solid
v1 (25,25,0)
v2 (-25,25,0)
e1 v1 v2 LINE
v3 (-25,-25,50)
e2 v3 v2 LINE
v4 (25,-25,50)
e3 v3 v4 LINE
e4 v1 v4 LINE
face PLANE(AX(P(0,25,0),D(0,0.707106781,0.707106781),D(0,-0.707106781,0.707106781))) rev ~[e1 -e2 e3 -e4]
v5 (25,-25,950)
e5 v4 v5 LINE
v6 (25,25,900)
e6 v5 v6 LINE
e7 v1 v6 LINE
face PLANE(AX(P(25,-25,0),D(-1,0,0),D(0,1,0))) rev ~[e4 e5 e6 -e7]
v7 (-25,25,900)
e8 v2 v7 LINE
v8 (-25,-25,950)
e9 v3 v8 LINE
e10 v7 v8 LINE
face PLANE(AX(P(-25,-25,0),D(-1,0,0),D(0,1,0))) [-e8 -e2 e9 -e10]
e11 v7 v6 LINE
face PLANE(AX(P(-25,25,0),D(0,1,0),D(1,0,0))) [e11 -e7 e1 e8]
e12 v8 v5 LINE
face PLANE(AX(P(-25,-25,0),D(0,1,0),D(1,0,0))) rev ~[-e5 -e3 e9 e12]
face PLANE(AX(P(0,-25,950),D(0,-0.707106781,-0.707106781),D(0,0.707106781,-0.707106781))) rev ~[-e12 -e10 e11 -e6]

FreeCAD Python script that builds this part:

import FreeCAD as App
import Part
import Sketcher
from FreeCAD import Vector

doc = App.newDocument("Part")
body = doc.addObject("PartDesign::Body", "Body")

sketch1 = doc.addObject("Sketcher::SketchObject", "Sketch")
body.addObject(sketch1)
sketch1.AttachmentSupport = (doc.XY_Plane, [""])
sketch1.MapMode = "FlatFace"
sketch1.addGeometry([
    Part.LineSegment(Vector(-25, 25, 0), Vector(-25, -25, 0)),
    Part.LineSegment(Vector(-25, -25, 0), Vector(25, -25, 0)),
    Part.LineSegment(Vector(25, -25, 0), Vector(25, 25, 0)),
    Part.LineSegment(Vector(25, 25, 0), Vector(-25, 25, 0)),
], False)
sketch1.addConstraint([
    Sketcher.Constraint("Coincident", 0, 2, 1, 1),
    Sketcher.Constraint("Coincident", 1, 2, 2, 1),
    Sketcher.Constraint("Coincident", 2, 2, 3, 1),
    Sketcher.Constraint("Coincident", 3, 2, 0, 1),
    Sketcher.Constraint("Vertical", 0),
    Sketcher.Constraint("Horizontal", 1),
    Sketcher.Constraint("Vertical", 2),
    Sketcher.Constraint("Horizontal", 3),
    Sketcher.Constraint("Symmetric", 0, 2, 2, 2, -1, 1),
    Sketcher.Constraint("Equal", 3, 0),
    Sketcher.Constraint("DistanceX", 1, 1, 1, 2, 50.0),
])
pad1 = doc.addObject("PartDesign::Pad", "Pad")
body.addObject(pad1)
pad1.Profile = sketch1
pad1.Length = 950

sketch2 = doc.addObject("Sketcher::SketchObject", "Sketch001")
body.addObject(sketch2)
sketch2.AttachmentSupport = (doc.YZ_Plane, [""])
sketch2.MapMode = "FlatFace"
sketch2.addGeometry([
    Part.LineSegment(Vector(135, 950, 0), Vector(-25, 950, 0)),
    Part.LineSegment(Vector(-25, 950, 0), Vector(135, 790, 0)),
    Part.LineSegment(Vector(135, 790, 0), Vector(135, 950, 0)),
], False)
sketch2.addConstraint([
    Sketcher.Constraint("Coincident", 0, 2, 1, 1),
    Sketcher.Constraint("Coincident", 1, 2, 2, 1),
    Sketcher.Constraint("Coincident", 2, 2, 0, 1),
    Sketcher.Constraint("Horizontal", 0),
    Sketcher.Constraint("Vertical", 2),
    Sketcher.Constraint("Equal", 0, 2),
    Sketcher.Constraint("DistanceX", 0, 2, -1, 1, 25.0),
    Sketcher.Constraint("DistanceY", -1, 1, 0, 2, 950.0),
    Sketcher.Constraint("DistanceX", 0, 2, 0, 1, 160.305869),
])
pocket1 = doc.addObject("PartDesign::Pocket", "Pocket")
body.addObject(pocket1)
pocket1.Profile = sketch2
pocket1.Type = "ThroughAll"
pocket1.Midplane = True

sketch3 = doc.addObject("Sketcher::SketchObject", "Sketch002")
body.addObject(sketch3)
sketch3.AttachmentSupport = (doc.YZ_Plane, [""])
sketch3.MapMode = "FlatFace"
sketch3.addGeometry([
    Part.LineSegment(Vector(-25, 0, 0), Vector(25, 0, 0)),
    Part.LineSegment(Vector(25, 0, 0), Vector(-25, 50, 0)),
    Part.LineSegment(Vector(-25, 50, 0), Vector(-25, 0, 0)),
], False)
sketch3.addConstraint([
    Sketcher.Constraint("Coincident", 0, 2, 1, 1),
    Sketcher.Constraint("Coincident", 1, 2, 2, 1),
    Sketcher.Constraint("Coincident", 2, 2, 0, 1),
    Sketcher.Constraint("Horizontal", 0),
    Sketcher.Constraint("Vertical", 2),
    Sketcher.Constraint("Symmetric", 0, 2, 2, 2, -1, 1),
    Sketcher.Constraint("Equal", 0, 2),
    Sketcher.Constraint("DistanceX", 0, 1, 0, 2, 50.0),
])
pocket2 = doc.addObject("PartDesign::Pocket", "Pocket001")
body.addObject(pocket2)
pocket2.Profile = sketch3
pocket2.Type = "ThroughAll"
pocket2.Midplane = True

doc.recompute()
